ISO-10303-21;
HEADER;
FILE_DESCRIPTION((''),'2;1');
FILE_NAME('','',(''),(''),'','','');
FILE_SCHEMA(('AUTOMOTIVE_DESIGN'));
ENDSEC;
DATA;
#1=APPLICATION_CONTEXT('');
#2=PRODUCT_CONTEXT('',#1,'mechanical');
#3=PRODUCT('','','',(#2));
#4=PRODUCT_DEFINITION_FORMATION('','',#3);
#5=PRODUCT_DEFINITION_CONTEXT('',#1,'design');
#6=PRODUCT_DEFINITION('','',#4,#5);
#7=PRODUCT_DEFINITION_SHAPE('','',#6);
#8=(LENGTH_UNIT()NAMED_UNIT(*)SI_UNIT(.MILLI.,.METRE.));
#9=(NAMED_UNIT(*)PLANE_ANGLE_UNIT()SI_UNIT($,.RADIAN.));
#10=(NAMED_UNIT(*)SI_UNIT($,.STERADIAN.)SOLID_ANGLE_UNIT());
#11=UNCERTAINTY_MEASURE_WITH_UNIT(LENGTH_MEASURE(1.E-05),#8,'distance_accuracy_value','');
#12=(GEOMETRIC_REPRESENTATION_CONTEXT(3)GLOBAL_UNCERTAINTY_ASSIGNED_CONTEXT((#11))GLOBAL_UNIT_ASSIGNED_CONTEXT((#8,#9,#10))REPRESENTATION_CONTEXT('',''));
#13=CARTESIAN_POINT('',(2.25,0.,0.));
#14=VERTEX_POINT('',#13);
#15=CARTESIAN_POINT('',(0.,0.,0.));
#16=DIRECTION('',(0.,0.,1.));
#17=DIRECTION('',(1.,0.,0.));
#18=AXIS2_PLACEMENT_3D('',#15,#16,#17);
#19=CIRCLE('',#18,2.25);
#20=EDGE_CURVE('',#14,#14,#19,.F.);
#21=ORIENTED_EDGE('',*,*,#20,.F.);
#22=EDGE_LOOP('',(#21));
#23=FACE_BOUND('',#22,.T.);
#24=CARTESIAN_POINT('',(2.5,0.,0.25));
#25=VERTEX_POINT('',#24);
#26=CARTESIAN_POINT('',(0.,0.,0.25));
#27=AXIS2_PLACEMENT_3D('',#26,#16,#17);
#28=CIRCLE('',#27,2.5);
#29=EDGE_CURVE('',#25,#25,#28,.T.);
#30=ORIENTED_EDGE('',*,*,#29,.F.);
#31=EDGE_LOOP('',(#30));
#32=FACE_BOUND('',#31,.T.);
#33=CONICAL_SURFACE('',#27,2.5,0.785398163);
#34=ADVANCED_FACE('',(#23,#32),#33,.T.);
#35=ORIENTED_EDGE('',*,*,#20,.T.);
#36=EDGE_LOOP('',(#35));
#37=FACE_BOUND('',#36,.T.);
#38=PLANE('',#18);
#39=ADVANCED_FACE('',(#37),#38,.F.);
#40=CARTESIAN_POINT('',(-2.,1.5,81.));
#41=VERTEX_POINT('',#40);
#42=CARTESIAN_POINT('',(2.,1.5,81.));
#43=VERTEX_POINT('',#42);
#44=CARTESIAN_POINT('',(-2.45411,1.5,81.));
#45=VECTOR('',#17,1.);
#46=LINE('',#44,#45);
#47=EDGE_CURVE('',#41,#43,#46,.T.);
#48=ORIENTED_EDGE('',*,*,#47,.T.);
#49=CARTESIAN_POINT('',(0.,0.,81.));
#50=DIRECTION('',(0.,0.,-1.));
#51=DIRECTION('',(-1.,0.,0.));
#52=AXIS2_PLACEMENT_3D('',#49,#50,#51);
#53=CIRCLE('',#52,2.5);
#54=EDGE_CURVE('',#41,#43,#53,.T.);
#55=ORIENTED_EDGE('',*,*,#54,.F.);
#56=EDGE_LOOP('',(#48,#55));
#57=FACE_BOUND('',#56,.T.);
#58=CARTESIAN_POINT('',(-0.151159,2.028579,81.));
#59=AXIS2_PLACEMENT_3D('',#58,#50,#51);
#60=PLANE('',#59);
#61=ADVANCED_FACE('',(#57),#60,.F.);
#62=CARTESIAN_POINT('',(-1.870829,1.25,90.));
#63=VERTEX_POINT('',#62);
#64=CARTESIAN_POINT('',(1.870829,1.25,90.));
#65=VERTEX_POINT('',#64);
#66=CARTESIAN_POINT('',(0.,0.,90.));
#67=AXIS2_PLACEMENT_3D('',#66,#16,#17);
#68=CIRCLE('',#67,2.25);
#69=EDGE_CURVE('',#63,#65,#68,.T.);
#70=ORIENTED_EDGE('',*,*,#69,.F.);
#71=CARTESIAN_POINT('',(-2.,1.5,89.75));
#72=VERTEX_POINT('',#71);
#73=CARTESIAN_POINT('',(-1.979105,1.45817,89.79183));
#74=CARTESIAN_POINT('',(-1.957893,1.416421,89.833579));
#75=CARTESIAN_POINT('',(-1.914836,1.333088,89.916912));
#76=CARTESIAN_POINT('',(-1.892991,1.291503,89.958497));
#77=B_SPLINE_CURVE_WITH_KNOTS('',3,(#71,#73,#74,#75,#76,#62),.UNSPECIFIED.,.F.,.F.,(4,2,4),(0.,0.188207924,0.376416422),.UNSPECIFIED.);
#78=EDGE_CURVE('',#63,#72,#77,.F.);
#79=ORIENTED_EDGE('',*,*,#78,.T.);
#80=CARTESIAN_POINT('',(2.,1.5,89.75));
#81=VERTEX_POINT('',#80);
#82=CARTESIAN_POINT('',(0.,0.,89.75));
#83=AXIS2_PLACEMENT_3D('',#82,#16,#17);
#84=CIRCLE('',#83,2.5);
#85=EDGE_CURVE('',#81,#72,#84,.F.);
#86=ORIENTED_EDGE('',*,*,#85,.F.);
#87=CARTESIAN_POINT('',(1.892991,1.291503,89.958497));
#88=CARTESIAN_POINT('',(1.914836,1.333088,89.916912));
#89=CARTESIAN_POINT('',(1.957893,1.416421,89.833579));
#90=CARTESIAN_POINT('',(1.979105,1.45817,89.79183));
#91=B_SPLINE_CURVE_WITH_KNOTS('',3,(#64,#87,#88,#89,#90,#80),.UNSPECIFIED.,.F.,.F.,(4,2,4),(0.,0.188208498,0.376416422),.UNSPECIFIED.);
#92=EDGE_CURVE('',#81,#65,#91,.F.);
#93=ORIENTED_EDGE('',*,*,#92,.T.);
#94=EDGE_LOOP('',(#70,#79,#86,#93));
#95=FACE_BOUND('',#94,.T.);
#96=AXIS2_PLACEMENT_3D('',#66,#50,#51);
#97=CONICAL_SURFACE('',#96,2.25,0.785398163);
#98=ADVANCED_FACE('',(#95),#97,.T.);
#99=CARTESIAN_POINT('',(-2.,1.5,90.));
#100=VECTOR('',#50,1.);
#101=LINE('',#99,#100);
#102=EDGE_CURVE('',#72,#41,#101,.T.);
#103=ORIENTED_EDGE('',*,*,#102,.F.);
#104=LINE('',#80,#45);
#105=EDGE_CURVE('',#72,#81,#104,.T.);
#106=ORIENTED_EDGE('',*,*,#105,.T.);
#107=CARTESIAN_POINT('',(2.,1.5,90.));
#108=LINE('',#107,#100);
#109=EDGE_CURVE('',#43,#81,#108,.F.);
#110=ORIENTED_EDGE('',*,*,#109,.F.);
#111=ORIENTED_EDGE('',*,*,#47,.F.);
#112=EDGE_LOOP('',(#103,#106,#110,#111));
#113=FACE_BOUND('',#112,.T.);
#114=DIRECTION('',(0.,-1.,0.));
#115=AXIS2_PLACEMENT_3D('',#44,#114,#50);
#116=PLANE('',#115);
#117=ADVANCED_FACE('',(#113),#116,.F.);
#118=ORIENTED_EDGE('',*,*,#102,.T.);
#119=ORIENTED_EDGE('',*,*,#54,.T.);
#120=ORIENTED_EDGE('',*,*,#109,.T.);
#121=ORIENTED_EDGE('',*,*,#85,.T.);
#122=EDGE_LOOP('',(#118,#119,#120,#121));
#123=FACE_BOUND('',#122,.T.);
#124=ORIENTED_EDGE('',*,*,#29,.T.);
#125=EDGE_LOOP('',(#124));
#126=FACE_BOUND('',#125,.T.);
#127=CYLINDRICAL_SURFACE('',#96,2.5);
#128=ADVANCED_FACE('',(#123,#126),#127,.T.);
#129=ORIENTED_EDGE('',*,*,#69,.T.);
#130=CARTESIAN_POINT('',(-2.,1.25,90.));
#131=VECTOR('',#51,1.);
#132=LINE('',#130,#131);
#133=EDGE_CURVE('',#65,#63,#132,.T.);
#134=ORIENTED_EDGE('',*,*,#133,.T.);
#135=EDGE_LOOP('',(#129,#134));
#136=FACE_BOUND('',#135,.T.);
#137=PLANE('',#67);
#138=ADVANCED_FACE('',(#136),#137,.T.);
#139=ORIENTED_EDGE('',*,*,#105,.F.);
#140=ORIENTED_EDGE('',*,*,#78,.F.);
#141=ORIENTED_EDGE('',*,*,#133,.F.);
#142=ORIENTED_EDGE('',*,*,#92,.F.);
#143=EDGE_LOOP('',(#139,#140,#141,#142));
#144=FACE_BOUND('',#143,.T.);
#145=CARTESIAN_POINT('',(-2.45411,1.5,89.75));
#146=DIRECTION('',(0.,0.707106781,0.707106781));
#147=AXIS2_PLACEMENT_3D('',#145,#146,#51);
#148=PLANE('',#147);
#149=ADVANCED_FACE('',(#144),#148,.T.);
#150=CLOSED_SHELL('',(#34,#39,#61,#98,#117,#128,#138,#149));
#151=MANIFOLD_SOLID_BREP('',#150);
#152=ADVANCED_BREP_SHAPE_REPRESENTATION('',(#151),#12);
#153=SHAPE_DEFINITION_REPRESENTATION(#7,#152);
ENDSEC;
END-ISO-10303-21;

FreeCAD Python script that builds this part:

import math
import FreeCAD as App
import Part
import Sketcher
from FreeCAD import Vector
Q = App.Units.Quantity


def edges_at(feature, points):
    """Names of the edges that pass closest to the given points."""
    edges = feature.Shape.Edges
    near = lambda p: min(range(len(edges)), key=lambda i: edges[i].distToShape(Part.Vertex(*p))[0])
    return sorted({f"Edge{near(p) + 1}" for p in points})

doc = App.newDocument("Part")
params = doc.addObject("Spreadsheet::Sheet", "Params")
for row, (alias, value) in enumerate([
    ("sketch1_diameter", "5 mm"),
    ("pad1_length", "90 mm"),
    ("pocket1_length", "9 mm"),
    ("chamfer_size", "0.25 mm"),
], start=1):
    params.set(f"A{row}", alias)
    params.set(f"B{row}", "=" + value)
    params.setAlias(f"B{row}", alias)

body = doc.addObject("PartDesign::Body", "Body")

# Sketch on XY plane
sketch1 = doc.addObject("Sketcher::SketchObject", "Sketch")
body.addObject(sketch1)
sketch1.AttachmentSupport = (doc.XY_Plane, [""])
sketch1.MapMode = "FlatFace"
sketch1.addGeometry(Part.Circle(Vector(0, 0, 0), Vector(0, 0, 1), 2.5), False)
sketch1.addConstraint([
    Sketcher.Constraint("Coincident", 0, 3, -1, 1),
    Sketcher.Constraint("Diameter", 0, Q("5 mm")),
])
sketch1.setExpression("Constraints[1]", "Params.sketch1_diameter")
pad1 = doc.addObject("PartDesign::Pad", "Pad")
body.addObject(pad1)
pad1.Profile = sketch1
pad1.setExpression("Length", "Params.pad1_length")

# Sketch on XY plane
sketch2 = doc.addObject("Sketcher::SketchObject", "Sketch001")
body.addObject(sketch2)
sketch2.AttachmentSupport = (doc.XY_Plane, [""])
sketch2.MapMode = "FlatFace"
sketch2.AttachmentOffset = App.Placement(Vector(0, 0, 90), App.Rotation())
sketch2.addGeometry([
    Part.LineSegment(Vector(-2.5, 1.5, 0), Vector(2.2, 1.5, 0)),
    Part.ArcOfCircle(Part.Circle(Vector(-0.2, 2, 0), Vector(0, 0, 1), 2.4), math.radians(-13), math.radians(193)),
], False)
sketch2.addConstraint([
    Sketcher.Constraint("Coincident", 0, 1, 1, 2),
    Sketcher.Constraint("Coincident", 1, 1, 0, 2),
    Sketcher.Constraint("Horizontal", 0),
    Sketcher.Constraint("DistanceY", -1, 1, 0, 1, Q("1.5 mm")),
    Sketcher.Constraint("Radius", 1, Q("2.362833 mm")),
    Sketcher.Constraint("DistanceX", 0, 1, 0, 2, Q("4.605902 mm")),
    Sketcher.Constraint("DistanceX", 1, 3, -1, 1, Q("0.151159 mm")),
])
pocket1 = doc.addObject("PartDesign::Pocket", "Pocket")
body.addObject(pocket1)
pocket1.Profile = sketch2
pocket1.setExpression("Length", "Params.pocket1_length")
doc.recompute()

chamfer = doc.addObject("PartDesign::Chamfer", "Chamfer")
body.addObject(chamfer)
chamfer.Base = (pocket1, edges_at(pocket1, [(2.5, 0, 0), (0.791, -2.372, 90), (0, 1.5, 90)]))
chamfer.setExpression("Size", "Params.chamfer_size")

doc.recompute()
